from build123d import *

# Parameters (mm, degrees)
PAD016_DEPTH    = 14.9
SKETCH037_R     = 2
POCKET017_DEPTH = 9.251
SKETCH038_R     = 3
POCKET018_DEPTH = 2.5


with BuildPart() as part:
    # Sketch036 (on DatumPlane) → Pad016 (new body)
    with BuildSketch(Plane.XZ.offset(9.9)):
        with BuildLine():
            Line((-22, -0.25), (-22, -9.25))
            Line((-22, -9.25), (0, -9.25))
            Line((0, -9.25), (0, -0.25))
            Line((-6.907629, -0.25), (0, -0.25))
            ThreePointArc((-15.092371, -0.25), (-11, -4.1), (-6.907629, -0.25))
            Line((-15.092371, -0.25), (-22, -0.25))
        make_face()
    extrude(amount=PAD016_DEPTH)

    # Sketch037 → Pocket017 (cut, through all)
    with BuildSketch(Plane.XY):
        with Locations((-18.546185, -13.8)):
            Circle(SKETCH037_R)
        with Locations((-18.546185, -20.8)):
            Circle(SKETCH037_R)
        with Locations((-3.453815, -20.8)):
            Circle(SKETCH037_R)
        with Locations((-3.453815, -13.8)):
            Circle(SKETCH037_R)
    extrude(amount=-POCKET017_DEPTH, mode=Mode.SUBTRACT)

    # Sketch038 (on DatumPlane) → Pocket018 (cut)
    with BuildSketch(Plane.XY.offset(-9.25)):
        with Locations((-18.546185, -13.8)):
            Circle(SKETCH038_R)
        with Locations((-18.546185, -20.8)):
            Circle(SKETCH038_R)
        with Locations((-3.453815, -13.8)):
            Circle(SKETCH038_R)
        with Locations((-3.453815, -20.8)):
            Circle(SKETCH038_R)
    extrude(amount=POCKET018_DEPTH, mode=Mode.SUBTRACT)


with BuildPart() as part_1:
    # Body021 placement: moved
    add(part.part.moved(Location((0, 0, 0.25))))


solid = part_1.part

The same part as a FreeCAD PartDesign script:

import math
import FreeCAD as App
import Part
import Sketcher
from FreeCAD import Vector
Q = App.Units.Quantity

doc = App.newDocument("Part")
body = doc.addObject("PartDesign::Body", "Body")

sketch1 = body.newObject("Sketcher::SketchObject", "Sketch")
sketch1.AttachmentSupport = (doc.getObject("XZ_Plane"), [""])
sketch1.MapMode = "FlatFace"
sketch1.AttachmentOffset = App.Placement(Vector(0, 0, 9.9), App.Rotation())
sketch1.addGeometry(Part.LineSegment(Vector(-22, -0.25, 0), Vector(-22, -9.25, 0)), False)
sketch1.addGeometry(Part.LineSegment(Vector(-22, -9.25, 0), Vector(0, -9.25, 0)), False)
sketch1.addGeometry(Part.LineSegment(Vector(0, -9.25, 0), Vector(0, -0.25, 0)), False)
sketch1.addGeometry(Part.LineSegment(Vector(0, -0.25, 0), Vector(-6.907629, -0.25, 0)), False)
sketch1.addGeometry(Part.ArcOfCircle(Part.Circle(Vector(-11, 0, 0), Vector(0, 0, 1), 4.1), math.radians(-176.504186), math.radians(-3.495814)), False)
sketch1.addGeometry(Part.LineSegment(Vector(-15.092371, -0.25, 0), Vector(-22, -0.25, 0)), False)
sketch1.addConstraint(Sketcher.Constraint("Coincident", 0, 2, 1, 1))
sketch1.addConstraint(Sketcher.Constraint("Coincident", 1, 2, 2, 1))
sketch1.addConstraint(Sketcher.Constraint("Coincident", 2, 2, 3, 1))
sketch1.addConstraint(Sketcher.Constraint("Coincident", 3, 2, 4, 2))
sketch1.addConstraint(Sketcher.Constraint("Coincident", 4, 1, 5, 1))
sketch1.addConstraint(Sketcher.Constraint("Coincident", 5, 2, 0, 1))
sketch1.addConstraint(Sketcher.Constraint("Vertical", 0))
sketch1.addConstraint(Sketcher.Constraint("Horizontal", 1))
sketch1.addConstraint(Sketcher.Constraint("Vertical", 2))
sketch1.addConstraint(Sketcher.Constraint("Horizontal", 3))
sketch1.addConstraint(Sketcher.Constraint("Horizontal", 5))
sketch1.addConstraint(Sketcher.Constraint("PointOnObject", 4, 3, -1))
sketch1.addConstraint(Sketcher.Constraint("PointOnObject", 1, 2, -2))
sketch1.addConstraint(Sketcher.Constraint("Horizontal", 3, 2, 4, 1))
sketch1.addConstraint(Sketcher.Constraint("Equal", 3, 5))
sketch1.addConstraint(Sketcher.Constraint("Radius", 4, Q("4.1 mm")))
sketch1.addConstraint(Sketcher.Constraint("DistanceX", 1, 1, 1, 2, Q("22 mm")))
sketch1.addConstraint(Sketcher.Constraint("DistanceY", 0, 2, 0, 1, Q("9 mm")))
sketch1.addConstraint(Sketcher.Constraint("DistanceY", 0, 2, -1, 1, Q("9.25 mm")))
pad1 = body.newObject("PartDesign::Pad", "Pad")
pad1.Profile = sketch1
pad1.Length = 14.9

sketch2 = body.newObject("Sketcher::SketchObject", "Sketch001")
sketch2.AttachmentSupport = (doc.getObject("XY_Plane"), [""])
sketch2.MapMode = "FlatFace"
sketch2.addGeometry(Part.Circle(Vector(-18.546185, -13.8, 0), Vector(0, 0, 1), 2), False)
sketch2.addGeometry(Part.Circle(Vector(-18.546185, -20.8, 0), Vector(0, 0, 1), 2), False)
sketch2.addGeometry(Part.Circle(Vector(-3.453815, -20.8, 0), Vector(0, 0, 1), 2), False)
sketch2.addGeometry(Part.Circle(Vector(-3.453815, -13.8, 0), Vector(0, 0, 1), 2), False)
sketch2.addConstraint(Sketcher.Constraint("Equal", 0, 1))
sketch2.addConstraint(Sketcher.Constraint("Equal", 1, 2))
sketch2.addConstraint(Sketcher.Constraint("Equal", 2, 3))
sketch2.addConstraint(Sketcher.Constraint("Horizontal", 1, 3, 2, 3))
sketch2.addConstraint(Sketcher.Constraint("Horizontal", 0, 3, 3, 3))
sketch2.addConstraint(Sketcher.Constraint("Vertical", 0, 3, 1, 3))
sketch2.addConstraint(Sketcher.Constraint("Vertical", 2, 3, 3, 3))
sketch2.addConstraint(Sketcher.Constraint("Diameter", 0, Q("4 mm")))
sketch2.addConstraint(Sketcher.Constraint("DistanceY", 1, 3, 0, 3, Q("7 mm")))
sketch2.addConstraint(Sketcher.Constraint("DistanceY", 0, 3, -1, 1, Q("13.8 mm")))
sketch2.addConstraint(Sketcher.Constraint("DistanceX", 1, 3, 2, 3, Q("15.09237 mm")))
sketch2.addConstraint(Sketcher.Constraint("DistanceX", 0, 3, -1, 1, Q("18.546185 mm")))
pocket1 = body.newObject("PartDesign::Pocket", "Pocket")
pocket1.Profile = sketch2
pocket1.Type = "ThroughAll"

sketch3 = body.newObject("Sketcher::SketchObject", "Sketch002")
sketch3.AttachmentSupport = (doc.getObject("XY_Plane"), [""])
sketch3.MapMode = "FlatFace"
sketch3.AttachmentOffset = App.Placement(Vector(0, 0, -9.25), App.Rotation())
sketch3.addGeometry(Part.Circle(Vector(-18.546185, -13.8, 0), Vector(0, 0, 1), 3), False)
sketch3.addGeometry(Part.Circle(Vector(-18.546185, -20.8, 0), Vector(0, 0, 1), 3), False)
sketch3.addGeometry(Part.Circle(Vector(-3.453815, -13.8, 0), Vector(0, 0, 1), 3), False)
sketch3.addGeometry(Part.Circle(Vector(-3.453815, -20.8, 0), Vector(0, 0, 1), 3), False)
sketch3.addConstraint(Sketcher.Constraint("Equal", 0, 1))
sketch3.addConstraint(Sketcher.Constraint("Equal", 1, 2))
sketch3.addConstraint(Sketcher.Constraint("Equal", 2, 3))
sketch3.addConstraint(Sketcher.Constraint("Horizontal", 0, 3, 2, 3))
sketch3.addConstraint(Sketcher.Constraint("Horizontal", 1, 3, 3, 3))
sketch3.addConstraint(Sketcher.Constraint("Vertical", 0, 3, 1, 3))
sketch3.addConstraint(Sketcher.Constraint("Vertical", 2, 3, 3, 3))
sketch3.addConstraint(Sketcher.Constraint("Diameter", 0, Q("6 mm")))
sketch3.addConstraint(Sketcher.Constraint("DistanceY", 1, 3, 0, 3, Q("7 mm")))
sketch3.addConstraint(Sketcher.Constraint("DistanceY", 0, 3, -1, 1, Q("13.8 mm")))
sketch3.addConstraint(Sketcher.Constraint("DistanceX", 0, 3, 2, 3, Q("15.09237 mm")))
sketch3.addConstraint(Sketcher.Constraint("DistanceX", 0, 3, -1, 1, Q("18.546185 mm")))
pocket2 = body.newObject("PartDesign::Pocket", "Pocket001")
pocket2.Profile = sketch3
pocket2.Length = 2.5
pocket2.Reversed = True
body2 = doc.addObject("PartDesign::Body", "Body001")
doc.recompute()

body.Placement = App.Placement(Vector(0, 0, 0.25), App.Rotation(Vector(0, 0, 1), 0))
boolean = body2.newObject("PartDesign::Boolean", "Boolean")
boolean.Type = "Fuse"
boolean.addObjects([body])

doc.recompute()
